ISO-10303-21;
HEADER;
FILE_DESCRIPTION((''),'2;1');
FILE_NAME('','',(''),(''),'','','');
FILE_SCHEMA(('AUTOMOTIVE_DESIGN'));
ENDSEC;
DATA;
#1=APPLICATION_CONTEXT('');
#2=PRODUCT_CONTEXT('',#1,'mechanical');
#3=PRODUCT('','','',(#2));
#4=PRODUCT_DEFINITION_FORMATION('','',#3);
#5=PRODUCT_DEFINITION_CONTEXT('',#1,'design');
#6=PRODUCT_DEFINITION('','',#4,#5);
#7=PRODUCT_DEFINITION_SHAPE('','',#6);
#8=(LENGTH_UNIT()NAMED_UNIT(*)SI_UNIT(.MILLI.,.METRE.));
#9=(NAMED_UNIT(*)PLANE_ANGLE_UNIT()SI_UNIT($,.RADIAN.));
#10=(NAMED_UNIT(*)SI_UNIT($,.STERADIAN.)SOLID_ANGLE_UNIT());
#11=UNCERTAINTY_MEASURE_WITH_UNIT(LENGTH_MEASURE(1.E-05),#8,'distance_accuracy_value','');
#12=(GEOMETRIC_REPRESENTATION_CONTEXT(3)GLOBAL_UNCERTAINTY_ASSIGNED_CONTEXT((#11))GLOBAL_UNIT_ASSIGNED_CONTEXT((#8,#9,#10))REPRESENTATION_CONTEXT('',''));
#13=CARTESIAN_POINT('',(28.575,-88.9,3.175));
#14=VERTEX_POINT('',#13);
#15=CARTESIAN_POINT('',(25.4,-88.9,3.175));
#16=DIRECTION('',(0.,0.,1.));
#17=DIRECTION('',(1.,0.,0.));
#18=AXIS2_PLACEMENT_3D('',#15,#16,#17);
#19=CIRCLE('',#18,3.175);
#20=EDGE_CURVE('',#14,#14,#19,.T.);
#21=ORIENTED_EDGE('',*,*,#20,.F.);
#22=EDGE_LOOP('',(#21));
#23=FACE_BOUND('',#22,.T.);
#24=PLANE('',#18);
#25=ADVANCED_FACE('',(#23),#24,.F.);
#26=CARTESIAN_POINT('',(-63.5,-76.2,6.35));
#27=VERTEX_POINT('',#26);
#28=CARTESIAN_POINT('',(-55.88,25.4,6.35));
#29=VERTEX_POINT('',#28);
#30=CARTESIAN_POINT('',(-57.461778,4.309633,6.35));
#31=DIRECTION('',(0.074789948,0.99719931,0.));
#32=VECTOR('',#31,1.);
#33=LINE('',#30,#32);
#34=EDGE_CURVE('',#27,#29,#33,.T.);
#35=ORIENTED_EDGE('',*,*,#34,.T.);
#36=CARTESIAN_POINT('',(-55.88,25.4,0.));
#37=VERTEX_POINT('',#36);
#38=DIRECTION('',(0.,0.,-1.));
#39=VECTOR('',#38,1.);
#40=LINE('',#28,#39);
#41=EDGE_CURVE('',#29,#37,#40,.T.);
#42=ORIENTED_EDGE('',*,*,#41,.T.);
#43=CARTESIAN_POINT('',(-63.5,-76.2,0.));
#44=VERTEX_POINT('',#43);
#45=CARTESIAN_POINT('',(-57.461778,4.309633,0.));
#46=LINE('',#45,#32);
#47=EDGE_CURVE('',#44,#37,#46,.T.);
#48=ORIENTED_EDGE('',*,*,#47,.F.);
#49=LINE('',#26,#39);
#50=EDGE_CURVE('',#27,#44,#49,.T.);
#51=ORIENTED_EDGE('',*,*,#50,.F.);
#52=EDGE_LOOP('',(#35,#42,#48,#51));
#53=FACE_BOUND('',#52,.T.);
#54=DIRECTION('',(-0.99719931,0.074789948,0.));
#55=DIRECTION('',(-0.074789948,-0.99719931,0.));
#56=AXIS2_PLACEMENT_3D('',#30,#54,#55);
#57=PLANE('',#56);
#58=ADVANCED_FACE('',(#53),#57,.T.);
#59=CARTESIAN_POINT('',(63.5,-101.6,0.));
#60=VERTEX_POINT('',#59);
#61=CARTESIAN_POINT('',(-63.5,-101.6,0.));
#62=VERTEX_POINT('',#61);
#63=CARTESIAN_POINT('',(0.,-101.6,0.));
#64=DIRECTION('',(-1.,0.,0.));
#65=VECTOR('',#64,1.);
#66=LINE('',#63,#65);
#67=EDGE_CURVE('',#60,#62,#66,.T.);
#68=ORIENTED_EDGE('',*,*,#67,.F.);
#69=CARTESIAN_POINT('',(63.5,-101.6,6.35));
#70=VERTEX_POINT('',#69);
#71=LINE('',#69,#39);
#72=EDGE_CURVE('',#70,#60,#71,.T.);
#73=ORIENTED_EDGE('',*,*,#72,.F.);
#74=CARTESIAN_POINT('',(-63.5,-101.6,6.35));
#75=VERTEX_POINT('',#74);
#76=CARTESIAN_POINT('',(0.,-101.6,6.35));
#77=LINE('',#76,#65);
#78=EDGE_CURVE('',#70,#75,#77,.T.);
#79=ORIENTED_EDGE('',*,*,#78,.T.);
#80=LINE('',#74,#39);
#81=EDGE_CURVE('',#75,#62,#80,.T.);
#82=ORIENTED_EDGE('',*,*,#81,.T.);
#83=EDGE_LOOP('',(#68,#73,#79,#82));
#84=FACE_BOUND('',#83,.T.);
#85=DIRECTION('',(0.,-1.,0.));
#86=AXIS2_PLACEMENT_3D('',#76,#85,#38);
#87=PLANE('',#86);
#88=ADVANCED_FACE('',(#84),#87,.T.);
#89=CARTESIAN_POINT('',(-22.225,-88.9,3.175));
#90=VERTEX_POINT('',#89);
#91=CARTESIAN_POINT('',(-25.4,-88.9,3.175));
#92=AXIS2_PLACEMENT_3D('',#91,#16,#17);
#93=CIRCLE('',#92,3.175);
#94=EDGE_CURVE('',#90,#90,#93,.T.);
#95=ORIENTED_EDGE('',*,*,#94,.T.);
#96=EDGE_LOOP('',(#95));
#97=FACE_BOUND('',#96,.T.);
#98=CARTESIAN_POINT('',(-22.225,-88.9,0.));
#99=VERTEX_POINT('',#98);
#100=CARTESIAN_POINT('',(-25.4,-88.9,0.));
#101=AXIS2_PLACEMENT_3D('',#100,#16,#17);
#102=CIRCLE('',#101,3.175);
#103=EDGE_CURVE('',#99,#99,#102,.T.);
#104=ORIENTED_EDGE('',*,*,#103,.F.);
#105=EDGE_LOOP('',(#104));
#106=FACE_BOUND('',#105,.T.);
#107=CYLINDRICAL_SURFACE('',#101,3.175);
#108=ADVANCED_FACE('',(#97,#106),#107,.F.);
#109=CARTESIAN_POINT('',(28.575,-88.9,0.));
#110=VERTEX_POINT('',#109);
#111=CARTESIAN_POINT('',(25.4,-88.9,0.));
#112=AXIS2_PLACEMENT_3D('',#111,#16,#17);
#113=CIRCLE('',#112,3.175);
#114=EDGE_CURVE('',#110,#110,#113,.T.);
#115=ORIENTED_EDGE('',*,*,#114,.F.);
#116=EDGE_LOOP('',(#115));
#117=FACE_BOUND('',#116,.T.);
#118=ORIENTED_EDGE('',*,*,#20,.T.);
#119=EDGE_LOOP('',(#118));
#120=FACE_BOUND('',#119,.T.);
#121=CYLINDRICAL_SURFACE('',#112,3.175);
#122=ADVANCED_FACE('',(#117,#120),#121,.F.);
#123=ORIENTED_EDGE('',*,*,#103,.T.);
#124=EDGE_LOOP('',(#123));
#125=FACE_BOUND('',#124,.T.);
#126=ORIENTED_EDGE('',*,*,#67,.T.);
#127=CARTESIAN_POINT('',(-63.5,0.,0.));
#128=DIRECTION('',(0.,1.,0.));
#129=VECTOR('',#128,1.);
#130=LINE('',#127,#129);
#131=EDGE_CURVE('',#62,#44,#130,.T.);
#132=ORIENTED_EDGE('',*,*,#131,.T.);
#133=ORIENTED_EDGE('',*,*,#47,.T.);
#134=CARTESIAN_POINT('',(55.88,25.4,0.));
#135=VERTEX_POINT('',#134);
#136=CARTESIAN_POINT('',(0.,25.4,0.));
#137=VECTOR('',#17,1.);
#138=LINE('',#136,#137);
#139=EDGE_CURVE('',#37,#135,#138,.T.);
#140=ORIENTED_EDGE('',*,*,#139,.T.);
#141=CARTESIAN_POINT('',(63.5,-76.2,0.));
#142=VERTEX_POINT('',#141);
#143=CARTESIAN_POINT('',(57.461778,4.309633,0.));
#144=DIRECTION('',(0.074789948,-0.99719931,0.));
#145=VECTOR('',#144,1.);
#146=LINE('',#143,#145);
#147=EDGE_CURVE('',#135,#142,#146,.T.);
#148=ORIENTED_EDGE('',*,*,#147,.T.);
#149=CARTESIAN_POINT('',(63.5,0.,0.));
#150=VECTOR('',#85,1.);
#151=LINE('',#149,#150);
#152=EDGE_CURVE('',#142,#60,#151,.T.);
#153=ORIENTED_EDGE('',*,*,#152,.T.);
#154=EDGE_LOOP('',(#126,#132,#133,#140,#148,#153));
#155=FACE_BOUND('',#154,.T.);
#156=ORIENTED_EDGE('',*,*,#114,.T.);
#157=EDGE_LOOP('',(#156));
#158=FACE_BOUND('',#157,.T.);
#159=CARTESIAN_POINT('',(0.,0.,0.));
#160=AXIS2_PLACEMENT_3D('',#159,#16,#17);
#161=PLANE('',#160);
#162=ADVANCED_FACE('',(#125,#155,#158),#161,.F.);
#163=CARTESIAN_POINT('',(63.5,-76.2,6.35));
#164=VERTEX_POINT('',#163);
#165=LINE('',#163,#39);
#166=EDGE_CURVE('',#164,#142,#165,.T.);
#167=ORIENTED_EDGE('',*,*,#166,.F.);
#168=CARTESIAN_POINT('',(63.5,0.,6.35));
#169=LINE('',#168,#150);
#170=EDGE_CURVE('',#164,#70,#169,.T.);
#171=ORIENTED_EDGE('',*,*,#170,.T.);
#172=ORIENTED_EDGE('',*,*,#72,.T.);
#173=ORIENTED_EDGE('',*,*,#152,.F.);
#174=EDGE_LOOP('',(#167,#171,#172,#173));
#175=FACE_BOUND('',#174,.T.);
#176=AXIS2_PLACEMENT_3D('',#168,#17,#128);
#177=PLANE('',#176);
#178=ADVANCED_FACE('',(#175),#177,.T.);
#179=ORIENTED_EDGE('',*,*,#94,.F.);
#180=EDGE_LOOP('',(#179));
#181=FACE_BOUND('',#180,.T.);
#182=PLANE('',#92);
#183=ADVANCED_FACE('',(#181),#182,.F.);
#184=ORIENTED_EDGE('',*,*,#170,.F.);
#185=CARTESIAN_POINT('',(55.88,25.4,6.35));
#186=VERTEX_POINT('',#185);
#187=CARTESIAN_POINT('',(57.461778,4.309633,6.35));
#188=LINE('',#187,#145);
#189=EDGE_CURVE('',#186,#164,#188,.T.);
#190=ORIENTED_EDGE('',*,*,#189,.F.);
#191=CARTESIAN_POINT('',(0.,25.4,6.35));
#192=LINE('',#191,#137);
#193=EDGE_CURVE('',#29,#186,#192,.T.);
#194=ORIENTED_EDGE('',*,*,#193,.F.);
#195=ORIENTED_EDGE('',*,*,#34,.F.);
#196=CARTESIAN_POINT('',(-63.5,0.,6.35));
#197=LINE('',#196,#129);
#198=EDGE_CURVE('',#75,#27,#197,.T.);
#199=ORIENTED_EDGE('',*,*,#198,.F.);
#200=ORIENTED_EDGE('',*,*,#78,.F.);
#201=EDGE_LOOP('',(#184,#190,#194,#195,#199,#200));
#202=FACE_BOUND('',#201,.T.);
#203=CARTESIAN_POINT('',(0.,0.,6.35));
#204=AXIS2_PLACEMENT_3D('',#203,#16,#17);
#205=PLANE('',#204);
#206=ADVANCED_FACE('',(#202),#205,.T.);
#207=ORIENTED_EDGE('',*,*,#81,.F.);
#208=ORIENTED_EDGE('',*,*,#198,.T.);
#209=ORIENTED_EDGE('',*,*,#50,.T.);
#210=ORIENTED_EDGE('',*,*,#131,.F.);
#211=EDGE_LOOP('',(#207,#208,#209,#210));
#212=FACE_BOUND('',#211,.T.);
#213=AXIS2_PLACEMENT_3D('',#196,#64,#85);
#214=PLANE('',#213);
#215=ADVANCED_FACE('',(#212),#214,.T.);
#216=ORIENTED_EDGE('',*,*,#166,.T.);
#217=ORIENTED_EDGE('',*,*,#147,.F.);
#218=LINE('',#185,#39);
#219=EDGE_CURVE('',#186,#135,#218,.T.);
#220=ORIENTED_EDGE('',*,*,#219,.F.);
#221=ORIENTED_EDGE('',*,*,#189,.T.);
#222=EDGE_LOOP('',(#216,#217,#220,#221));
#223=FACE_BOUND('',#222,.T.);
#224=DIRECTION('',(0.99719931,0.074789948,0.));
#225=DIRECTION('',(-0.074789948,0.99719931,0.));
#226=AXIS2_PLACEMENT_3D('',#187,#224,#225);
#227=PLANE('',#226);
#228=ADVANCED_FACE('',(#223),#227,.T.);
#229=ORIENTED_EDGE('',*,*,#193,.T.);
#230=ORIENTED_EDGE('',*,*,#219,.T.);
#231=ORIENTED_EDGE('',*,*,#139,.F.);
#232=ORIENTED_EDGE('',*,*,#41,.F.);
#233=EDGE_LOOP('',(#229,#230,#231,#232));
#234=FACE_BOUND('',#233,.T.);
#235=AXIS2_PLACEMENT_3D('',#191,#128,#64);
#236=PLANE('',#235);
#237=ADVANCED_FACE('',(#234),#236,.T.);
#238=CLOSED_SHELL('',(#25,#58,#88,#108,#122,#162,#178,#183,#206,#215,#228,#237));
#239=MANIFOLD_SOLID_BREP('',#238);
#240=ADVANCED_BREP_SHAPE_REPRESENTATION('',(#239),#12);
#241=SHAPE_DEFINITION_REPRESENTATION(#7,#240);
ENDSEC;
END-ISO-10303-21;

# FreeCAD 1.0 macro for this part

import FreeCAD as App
import Part
import Sketcher
from FreeCAD import Vector
Q = App.Units.Quantity

doc = App.newDocument("Part")
params = doc.addObject("Spreadsheet::Sheet", "Params")
for row, (alias, value) in enumerate([
    ("sketch1_width", "5 in"),
    ("sketch1_height", "1 in"),
    ("sketch1_width2", "4.4 in"),
    ("pad1_length", "0.25 in"),
    ("sketch2_diameter", "0.25 in"),
    ("pocket1_length", "0.125 in"),
], start=1):
    params.set(f"A{row}", alias)
    params.set(f"B{row}", "=" + value)
    params.setAlias(f"B{row}", alias)

body = doc.addObject("PartDesign::Body", "Body")

sketch1 = body.newObject("Sketcher::SketchObject", "Sketch")
sketch1.AttachmentSupport = (doc.getObject("XY_Plane"), [""])
sketch1.MapMode = "FlatFace"
sketch1.addGeometry([
    Part.LineSegment(Vector(64, -76, 0), Vector(56, 25, 0)),
    Part.LineSegment(Vector(56, 25, 0), Vector(-56, 25, 0)),
    Part.LineSegment(Vector(-56, 25, 0), Vector(-64, -76, 0)),
    Part.LineSegment(Vector(-64, -76, 0), Vector(-64, -102, 0)),
    Part.LineSegment(Vector(-64, -102, 0), Vector(64, -102, 0)),
    Part.LineSegment(Vector(64, -102, 0), Vector(64, -76, 0)),
], False)
sketch1.addConstraint([
    Sketcher.Constraint("Coincident", 0, 2, 1, 1),
    Sketcher.Constraint("Coincident", 1, 2, 2, 1),
    Sketcher.Constraint("Coincident", 2, 2, 3, 1),
    Sketcher.Constraint("Coincident", 3, 2, 4, 1),
    Sketcher.Constraint("Coincident", 4, 2, 5, 1),
    Sketcher.Constraint("Coincident", 5, 2, 0, 1),
    Sketcher.Constraint("Horizontal", 1),
    Sketcher.Constraint("Vertical", 3),
    Sketcher.Constraint("Horizontal", 4),
    Sketcher.Constraint("Vertical", 5),
    Sketcher.Constraint("Symmetric", 2, 2, 5, 2, -2),
    Sketcher.Constraint("Equal", 0, 2),
    Sketcher.Constraint("DistanceX", 4, 1, 4, 2, Q("5 in")),
    Sketcher.Constraint("DistanceY", 3, 2, 3, 1, Q("1 in")),
    Sketcher.Constraint("DistanceX", 1, 2, 1, 1, Q("4.4 in")),
    Sketcher.Constraint("DistanceY", -1, 1, 0, 2, Q("1 in")),
    Sketcher.Constraint("DistanceY", 2, 2, -1, 1, Q("3 in")),
])
sketch1.setExpression("Constraints[12]", "Params.sketch1_width")
sketch1.setExpression("Constraints[13]", "Params.sketch1_height")
sketch1.setExpression("Constraints[14]", "Params.sketch1_width2")
pad1 = body.newObject("PartDesign::Pad", "Pad")
pad1.Profile = sketch1
pad1.setExpression("Length", "Params.pad1_length")

sketch2 = body.newObject("Sketcher::SketchObject", "Sketch001")
sketch2.AttachmentSupport = (doc.getObject("XY_Plane"), [""])
sketch2.MapMode = "FlatFace"
sketch2.AttachmentOffset = App.Placement(Vector(0, 0, 0.125 * 25.4), App.Rotation())
sketch2.addGeometry([
    Part.Circle(Vector(-25.4, -88.9, 0), Vector(0, 0, 1), 3.2),
    Part.Circle(Vector(25.4, -88.9, 0), Vector(0, 0, 1), 3.2),
], False)
sketch2.addConstraint([
    Sketcher.Constraint("Equal", 0, 1),
    Sketcher.Constraint("Symmetric", 0, 3, 1, 3, -2),
    Sketcher.Constraint("Diameter", 0, Q("0.25 in")),
    Sketcher.Constraint("DistanceX", 0, 3, -1, 1, Q("1 in")),
    Sketcher.Constraint("DistanceY", 0, 3, -1, 1, Q("3.5 in")),
])
sketch2.setExpression("Constraints[2]", "Params.sketch2_diameter")
pocket1 = body.newObject("PartDesign::Pocket", "Pocket")
pocket1.Profile = sketch2
pocket1.setExpression("Length", "Params.pocket1_length")

doc.recompute()
